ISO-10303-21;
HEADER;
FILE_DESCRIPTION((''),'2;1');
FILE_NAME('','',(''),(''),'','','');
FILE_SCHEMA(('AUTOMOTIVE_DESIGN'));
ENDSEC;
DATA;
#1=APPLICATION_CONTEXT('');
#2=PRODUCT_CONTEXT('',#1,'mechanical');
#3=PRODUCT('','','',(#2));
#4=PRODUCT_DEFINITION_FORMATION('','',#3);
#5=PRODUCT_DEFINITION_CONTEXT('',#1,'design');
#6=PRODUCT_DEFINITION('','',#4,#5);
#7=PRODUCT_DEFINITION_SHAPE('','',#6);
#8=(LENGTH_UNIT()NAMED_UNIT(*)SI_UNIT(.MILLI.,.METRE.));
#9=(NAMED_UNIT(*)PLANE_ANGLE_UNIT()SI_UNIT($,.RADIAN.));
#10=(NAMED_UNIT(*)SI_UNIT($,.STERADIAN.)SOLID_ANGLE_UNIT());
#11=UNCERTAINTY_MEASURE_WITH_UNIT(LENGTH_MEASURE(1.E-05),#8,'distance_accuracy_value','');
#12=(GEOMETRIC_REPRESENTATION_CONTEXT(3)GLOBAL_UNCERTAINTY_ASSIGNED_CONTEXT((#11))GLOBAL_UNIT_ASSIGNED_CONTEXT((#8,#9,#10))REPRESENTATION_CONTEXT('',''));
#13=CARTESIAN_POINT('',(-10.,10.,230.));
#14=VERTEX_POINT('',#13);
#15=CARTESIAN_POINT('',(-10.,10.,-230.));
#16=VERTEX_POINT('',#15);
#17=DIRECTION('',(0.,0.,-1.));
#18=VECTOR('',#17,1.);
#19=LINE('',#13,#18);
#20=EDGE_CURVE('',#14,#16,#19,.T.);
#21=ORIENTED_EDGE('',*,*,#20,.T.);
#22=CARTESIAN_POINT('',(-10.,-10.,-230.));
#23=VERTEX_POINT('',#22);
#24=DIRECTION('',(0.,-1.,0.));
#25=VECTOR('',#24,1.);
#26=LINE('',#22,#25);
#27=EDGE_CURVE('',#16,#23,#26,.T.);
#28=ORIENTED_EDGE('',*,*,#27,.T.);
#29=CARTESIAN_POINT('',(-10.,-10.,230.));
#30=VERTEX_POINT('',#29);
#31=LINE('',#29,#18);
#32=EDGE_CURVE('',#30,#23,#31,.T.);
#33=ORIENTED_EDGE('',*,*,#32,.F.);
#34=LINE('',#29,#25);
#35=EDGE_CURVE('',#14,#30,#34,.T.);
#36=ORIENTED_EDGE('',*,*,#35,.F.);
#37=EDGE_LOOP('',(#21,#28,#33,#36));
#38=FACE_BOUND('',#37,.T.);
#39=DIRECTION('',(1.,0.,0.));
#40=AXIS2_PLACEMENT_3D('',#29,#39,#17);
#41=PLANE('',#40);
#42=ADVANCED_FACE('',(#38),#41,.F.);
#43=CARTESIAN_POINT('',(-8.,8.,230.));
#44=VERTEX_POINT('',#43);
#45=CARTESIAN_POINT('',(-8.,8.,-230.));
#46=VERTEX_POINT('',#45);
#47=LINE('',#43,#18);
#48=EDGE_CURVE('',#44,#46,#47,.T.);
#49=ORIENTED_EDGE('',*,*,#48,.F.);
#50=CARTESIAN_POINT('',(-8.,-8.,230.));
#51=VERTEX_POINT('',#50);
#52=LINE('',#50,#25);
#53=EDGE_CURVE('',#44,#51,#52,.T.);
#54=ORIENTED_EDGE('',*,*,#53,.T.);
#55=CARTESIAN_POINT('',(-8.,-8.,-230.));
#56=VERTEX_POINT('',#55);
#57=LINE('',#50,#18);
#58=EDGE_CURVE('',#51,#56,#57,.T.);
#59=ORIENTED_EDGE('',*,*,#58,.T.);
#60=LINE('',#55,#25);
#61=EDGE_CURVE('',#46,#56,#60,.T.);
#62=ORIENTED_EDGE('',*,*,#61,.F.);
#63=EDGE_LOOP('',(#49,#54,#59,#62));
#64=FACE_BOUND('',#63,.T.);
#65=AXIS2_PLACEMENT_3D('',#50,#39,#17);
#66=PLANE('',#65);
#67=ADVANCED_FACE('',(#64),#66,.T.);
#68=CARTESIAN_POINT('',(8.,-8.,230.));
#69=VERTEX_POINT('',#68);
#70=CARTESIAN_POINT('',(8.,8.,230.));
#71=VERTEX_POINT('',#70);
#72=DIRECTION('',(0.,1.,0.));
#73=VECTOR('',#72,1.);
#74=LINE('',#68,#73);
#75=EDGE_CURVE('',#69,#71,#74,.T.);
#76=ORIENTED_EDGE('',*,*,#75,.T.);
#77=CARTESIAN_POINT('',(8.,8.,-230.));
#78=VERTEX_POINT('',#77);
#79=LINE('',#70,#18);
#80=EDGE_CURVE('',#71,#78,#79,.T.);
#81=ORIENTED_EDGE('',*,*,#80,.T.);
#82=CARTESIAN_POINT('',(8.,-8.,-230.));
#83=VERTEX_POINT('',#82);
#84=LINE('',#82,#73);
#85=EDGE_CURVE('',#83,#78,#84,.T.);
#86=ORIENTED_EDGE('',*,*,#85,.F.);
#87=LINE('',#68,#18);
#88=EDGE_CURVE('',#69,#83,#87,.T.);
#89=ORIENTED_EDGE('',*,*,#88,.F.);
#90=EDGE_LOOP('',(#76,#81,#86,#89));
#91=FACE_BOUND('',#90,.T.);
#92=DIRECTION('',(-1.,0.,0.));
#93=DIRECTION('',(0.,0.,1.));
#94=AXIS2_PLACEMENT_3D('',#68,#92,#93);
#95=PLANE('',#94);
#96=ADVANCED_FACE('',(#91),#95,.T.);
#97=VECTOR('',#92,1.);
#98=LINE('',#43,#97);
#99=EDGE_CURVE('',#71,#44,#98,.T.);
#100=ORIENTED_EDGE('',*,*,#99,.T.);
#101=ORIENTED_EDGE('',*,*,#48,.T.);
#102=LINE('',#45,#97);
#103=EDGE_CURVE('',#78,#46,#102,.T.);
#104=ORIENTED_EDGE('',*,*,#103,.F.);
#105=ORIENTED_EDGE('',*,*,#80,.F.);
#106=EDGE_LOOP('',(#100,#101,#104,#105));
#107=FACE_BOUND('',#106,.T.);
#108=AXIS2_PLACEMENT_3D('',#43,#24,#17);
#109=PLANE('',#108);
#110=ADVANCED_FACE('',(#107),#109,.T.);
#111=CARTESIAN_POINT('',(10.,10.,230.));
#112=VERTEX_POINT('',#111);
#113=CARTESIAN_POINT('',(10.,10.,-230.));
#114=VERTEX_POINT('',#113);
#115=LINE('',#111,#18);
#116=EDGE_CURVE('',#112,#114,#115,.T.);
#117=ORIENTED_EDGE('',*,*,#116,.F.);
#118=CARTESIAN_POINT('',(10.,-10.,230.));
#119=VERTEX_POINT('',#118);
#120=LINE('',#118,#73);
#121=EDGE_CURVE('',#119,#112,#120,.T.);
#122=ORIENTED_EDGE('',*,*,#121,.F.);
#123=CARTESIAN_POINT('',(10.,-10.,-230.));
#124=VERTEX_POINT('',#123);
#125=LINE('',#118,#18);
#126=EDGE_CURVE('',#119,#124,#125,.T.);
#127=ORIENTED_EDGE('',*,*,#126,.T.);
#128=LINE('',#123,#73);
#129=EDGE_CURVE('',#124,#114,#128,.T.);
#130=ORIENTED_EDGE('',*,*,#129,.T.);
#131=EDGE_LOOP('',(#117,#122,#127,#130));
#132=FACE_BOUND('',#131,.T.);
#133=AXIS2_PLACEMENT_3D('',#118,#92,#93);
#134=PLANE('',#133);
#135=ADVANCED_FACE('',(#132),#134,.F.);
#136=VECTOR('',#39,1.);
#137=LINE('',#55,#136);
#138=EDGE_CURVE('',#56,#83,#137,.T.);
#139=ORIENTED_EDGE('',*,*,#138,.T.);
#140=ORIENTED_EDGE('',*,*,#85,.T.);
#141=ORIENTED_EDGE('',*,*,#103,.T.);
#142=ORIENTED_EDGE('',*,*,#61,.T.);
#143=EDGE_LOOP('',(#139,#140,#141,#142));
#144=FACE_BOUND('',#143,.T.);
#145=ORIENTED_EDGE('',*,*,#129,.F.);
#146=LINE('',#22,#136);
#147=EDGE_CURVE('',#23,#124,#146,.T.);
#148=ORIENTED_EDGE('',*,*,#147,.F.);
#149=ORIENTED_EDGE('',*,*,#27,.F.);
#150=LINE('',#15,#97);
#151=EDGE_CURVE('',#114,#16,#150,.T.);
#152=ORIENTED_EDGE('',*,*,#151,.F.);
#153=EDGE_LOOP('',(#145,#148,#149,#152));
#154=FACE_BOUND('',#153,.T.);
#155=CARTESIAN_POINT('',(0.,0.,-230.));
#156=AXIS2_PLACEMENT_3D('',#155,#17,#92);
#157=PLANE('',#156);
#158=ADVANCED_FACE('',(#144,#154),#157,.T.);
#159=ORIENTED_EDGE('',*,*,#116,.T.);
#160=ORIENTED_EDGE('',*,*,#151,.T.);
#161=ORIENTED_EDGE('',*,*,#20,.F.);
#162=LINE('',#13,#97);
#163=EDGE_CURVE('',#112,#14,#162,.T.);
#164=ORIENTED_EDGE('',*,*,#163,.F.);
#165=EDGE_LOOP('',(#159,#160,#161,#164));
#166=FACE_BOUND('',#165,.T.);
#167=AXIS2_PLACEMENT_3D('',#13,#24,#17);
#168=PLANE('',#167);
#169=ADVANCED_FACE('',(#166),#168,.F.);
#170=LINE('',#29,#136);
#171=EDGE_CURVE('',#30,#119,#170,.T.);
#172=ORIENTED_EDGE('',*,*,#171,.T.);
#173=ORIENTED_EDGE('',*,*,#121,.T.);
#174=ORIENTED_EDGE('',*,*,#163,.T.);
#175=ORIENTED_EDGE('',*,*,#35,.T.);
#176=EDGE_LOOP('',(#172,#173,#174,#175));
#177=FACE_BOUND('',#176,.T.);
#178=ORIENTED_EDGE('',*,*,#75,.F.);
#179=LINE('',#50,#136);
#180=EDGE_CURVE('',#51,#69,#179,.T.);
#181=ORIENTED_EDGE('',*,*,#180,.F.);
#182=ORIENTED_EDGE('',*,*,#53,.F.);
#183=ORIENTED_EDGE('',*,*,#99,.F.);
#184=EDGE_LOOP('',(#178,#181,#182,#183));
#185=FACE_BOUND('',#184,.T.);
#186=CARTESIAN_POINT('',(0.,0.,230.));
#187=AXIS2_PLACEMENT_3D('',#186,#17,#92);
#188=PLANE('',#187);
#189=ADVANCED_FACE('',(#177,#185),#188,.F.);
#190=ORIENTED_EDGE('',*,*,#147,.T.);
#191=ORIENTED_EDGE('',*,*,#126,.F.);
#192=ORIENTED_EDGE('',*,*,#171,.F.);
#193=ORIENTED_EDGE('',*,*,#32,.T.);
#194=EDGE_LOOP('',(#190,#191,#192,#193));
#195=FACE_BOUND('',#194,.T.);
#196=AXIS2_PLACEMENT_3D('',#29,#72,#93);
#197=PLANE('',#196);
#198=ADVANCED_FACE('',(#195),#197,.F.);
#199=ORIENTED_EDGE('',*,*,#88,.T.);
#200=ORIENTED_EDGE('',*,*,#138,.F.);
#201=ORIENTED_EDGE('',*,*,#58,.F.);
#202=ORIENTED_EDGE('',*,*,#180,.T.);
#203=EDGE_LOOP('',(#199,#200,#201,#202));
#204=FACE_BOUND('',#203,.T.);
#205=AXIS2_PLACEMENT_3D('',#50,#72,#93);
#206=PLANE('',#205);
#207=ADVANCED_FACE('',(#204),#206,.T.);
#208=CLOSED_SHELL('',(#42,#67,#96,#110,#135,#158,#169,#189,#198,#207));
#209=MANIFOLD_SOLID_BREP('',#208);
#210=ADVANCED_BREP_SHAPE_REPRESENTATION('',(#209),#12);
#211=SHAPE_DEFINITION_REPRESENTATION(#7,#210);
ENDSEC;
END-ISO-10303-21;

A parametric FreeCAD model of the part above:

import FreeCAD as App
import Part
import Sketcher


def add_polygon(sketch, points):
    """Adds a closed chain of lines whose ends are joined by coincident constraints."""
    first, n = sketch.GeometryCount, len(points)
    for a, b in zip(points, points[1:] + points[:1]):
        sketch.addGeometry(Part.LineSegment(App.Vector(*a, 0), App.Vector(*b, 0)), False)
    for i in range(n):
        sketch.addConstraint(Sketcher.Constraint("Coincident", first + i, 2, first + (i + 1) % n, 1))

doc = App.newDocument("Part")
body = doc.addObject("PartDesign::Body", "Body")

# Sketch on XY plane
sketch1 = doc.addObject("Sketcher::SketchObject", "Sketch")
body.addObject(sketch1)
sketch1.AttachmentSupport = (doc.XY_Plane, [""])
sketch1.MapMode = "FlatFace"
add_polygon(sketch1, [(-10, 10), (-10, -10), (10, -10), (10, 10)])  # lines 0-3
add_polygon(sketch1, [(8, -8), (-8, -8), (-8, 8), (8, 8)])  # lines 4-7
sketch1.addConstraint([
    Sketcher.Constraint("Vertical", 0),
    Sketcher.Constraint("Horizontal", 1),
    Sketcher.Constraint("Vertical", 2),
    Sketcher.Constraint("Horizontal", 3),
    Sketcher.Constraint("Horizontal", 4),
    Sketcher.Constraint("Vertical", 5),
    Sketcher.Constraint("Horizontal", 6),
    Sketcher.Constraint("Vertical", 7),
    Sketcher.Constraint("Symmetric", 0, 2, 2, 2, -1, 1),
    Sketcher.Constraint("Symmetric", 4, 2, 6, 2, -1, 1),
    Sketcher.Constraint("Equal", 3, 0),
    Sketcher.Constraint("Equal", 6, 5),
    Sketcher.Constraint("DistanceX", 1, 1, 1, 2, 20.0),
    Sketcher.Constraint("DistanceX", 4, 2, 4, 1, 16.0),
])
pad1 = doc.addObject("PartDesign::Pad", "Pad")
body.addObject(pad1)
pad1.Profile = sketch1
pad1.Length = 460
pad1.Midplane = True

doc.recompute()
